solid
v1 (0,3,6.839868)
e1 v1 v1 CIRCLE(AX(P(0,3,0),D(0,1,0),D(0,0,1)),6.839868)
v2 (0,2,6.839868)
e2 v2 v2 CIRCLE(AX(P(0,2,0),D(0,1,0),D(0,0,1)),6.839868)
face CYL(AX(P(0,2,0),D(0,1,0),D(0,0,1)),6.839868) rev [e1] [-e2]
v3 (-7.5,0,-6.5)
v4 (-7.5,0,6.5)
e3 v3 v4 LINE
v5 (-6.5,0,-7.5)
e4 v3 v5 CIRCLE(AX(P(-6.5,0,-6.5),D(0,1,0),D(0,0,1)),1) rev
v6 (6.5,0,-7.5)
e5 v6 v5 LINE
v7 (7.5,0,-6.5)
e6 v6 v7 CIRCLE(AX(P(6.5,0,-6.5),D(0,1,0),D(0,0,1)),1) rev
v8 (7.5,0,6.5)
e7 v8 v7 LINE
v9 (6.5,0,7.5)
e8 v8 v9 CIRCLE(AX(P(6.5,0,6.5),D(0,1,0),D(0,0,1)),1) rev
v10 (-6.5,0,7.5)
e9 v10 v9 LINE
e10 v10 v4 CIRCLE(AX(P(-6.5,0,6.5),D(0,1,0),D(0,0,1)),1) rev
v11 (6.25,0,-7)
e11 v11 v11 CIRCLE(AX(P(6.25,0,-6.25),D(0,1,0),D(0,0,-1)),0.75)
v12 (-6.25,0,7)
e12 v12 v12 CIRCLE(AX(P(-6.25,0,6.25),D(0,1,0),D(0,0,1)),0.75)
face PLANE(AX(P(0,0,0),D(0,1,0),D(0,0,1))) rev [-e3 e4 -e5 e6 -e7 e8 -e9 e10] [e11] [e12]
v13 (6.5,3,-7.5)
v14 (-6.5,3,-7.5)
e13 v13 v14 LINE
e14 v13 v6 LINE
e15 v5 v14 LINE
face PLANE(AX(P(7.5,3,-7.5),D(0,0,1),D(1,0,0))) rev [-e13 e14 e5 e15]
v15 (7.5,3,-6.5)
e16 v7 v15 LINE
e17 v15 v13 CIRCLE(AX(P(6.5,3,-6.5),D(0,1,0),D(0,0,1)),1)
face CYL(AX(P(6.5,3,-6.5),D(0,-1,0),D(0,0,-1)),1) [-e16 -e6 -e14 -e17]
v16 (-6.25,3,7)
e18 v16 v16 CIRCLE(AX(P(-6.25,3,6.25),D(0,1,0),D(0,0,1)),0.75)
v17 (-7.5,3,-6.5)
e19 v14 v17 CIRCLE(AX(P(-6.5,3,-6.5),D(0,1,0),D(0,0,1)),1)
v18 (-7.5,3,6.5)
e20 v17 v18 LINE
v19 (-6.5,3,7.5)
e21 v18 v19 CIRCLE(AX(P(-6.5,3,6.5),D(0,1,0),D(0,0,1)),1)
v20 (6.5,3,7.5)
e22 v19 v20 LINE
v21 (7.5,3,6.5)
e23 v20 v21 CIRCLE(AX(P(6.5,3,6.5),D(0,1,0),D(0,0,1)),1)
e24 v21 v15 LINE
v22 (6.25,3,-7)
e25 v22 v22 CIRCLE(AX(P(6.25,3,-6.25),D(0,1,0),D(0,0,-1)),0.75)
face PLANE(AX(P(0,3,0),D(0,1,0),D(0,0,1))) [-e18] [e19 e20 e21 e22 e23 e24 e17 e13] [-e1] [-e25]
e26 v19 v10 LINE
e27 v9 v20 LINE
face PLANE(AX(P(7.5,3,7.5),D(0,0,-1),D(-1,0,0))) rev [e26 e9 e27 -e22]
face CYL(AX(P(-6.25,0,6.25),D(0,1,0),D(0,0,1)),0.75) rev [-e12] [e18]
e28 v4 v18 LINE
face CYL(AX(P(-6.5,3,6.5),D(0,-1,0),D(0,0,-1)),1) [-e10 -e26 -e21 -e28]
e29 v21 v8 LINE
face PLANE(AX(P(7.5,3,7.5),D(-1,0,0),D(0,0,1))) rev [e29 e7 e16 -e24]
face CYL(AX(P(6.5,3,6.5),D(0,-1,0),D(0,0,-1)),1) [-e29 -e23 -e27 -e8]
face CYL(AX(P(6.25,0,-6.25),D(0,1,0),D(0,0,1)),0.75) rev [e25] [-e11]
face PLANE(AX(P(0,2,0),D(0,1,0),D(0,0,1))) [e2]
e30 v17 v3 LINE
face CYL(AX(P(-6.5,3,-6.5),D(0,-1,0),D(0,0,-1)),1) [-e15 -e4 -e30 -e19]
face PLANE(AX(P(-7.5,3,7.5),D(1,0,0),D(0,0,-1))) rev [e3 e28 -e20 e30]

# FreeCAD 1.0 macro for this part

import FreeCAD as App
import Part
import Sketcher
from FreeCAD import Vector


def edges_at(feature, points):
    """Names of the edges that pass closest to the given points."""
    edges = feature.Shape.Edges
    near = lambda p: min(range(len(edges)), key=lambda i: edges[i].distToShape(Part.Vertex(*p))[0])
    return sorted({f"Edge{near(p) + 1}" for p in points})


def add_polygon(sketch, points):
    """Adds a closed chain of lines whose ends are joined by coincident constraints."""
    first, n = sketch.GeometryCount, len(points)
    for a, b in zip(points, points[1:] + points[:1]):
        sketch.addGeometry(Part.LineSegment(App.Vector(*a, 0), App.Vector(*b, 0)), False)
    for i in range(n):
        sketch.addConstraint(Sketcher.Constraint("Coincident", first + i, 2, first + (i + 1) % n, 1))

doc = App.newDocument("Part")
body = doc.addObject("PartDesign::Body", "Body")

sketch1 = doc.addObject("Sketcher::SketchObject", "Sketch")
body.addObject(sketch1)
sketch1.AttachmentSupport = (doc.XZ_Plane, [""])
sketch1.MapMode = "FlatFace"
add_polygon(sketch1, [(-7.5, -7.5), (-7.5, 7.5), (7.5, 7.5), (7.5, -7.5)])
sketch1.addConstraint([
    Sketcher.Constraint("Vertical", 0),
    Sketcher.Constraint("Horizontal", 1),
    Sketcher.Constraint("Vertical", 2),
    Sketcher.Constraint("Horizontal", 3),
    Sketcher.Constraint("Symmetric", 0, 2, 2, 2, -1, 1),
    Sketcher.Constraint("Equal", 3, 0),
    Sketcher.Constraint("DistanceX", 1, 1, 1, 2, 15.0),
])
pad1 = doc.addObject("PartDesign::Pad", "Pad")
body.addObject(pad1)
pad1.Profile = sketch1
pad1.Length = 3
pad1.Reversed = True
doc.recompute()

fillet = doc.addObject("PartDesign::Fillet", "Fillet")
body.addObject(fillet)
fillet.Base = (pad1, edges_at(pad1, [
    (-7.5, 1.5, -7.5),
    (7.5, 1.5, -7.5),
    (7.5, 1.5, 7.5),
    (-7.5, 1.5, 7.5),
]))
fillet.Radius = 1

sketch2 = doc.addObject("Sketcher::SketchObject", "Sketch001")
body.addObject(sketch2)
sketch2.AttachmentSupport = (doc.XZ_Plane, [""])
sketch2.MapMode = "FlatFace"
sketch2.AttachmentOffset = App.Placement(Vector(0, 0, -3), App.Rotation())
sketch2.addGeometry([
    Part.Circle(Vector(-6.25, 6.25, 0), Vector(0, 0, 1), 0.75),
    Part.Circle(Vector(6.25, -6.25, 0), Vector(0, 0, 1), 0.75),
], False)
sketch2.addConstraint([
    Sketcher.Constraint("Equal", 0, 1),
    Sketcher.Constraint("Symmetric", 0, 3, 1, 3, -1, 1),
    Sketcher.Constraint("Diameter", 0, 1.5),
    Sketcher.Constraint("DistanceX", 0, 3, 1, 3, 12.5),
    Sketcher.Constraint("DistanceY", 1, 3, 0, 3, 12.5),
])
pocket1 = doc.addObject("PartDesign::Pocket", "Pocket")
body.addObject(pocket1)
pocket1.Profile = sketch2
pocket1.Type = "ThroughAll"
pocket1.Reversed = True

sketch3 = doc.addObject("Sketcher::SketchObject", "Sketch002")
body.addObject(sketch3)
sketch3.AttachmentSupport = (doc.XZ_Plane, [""])
sketch3.MapMode = "FlatFace"
sketch3.AttachmentOffset = App.Placement(Vector(0, 0, -3), App.Rotation())
sketch3.addGeometry(Part.Circle(Vector(0, 0, 0), Vector(0, 0, 1), 6.839868), False)
sketch3.addConstraint([
    Sketcher.Constraint("Coincident", 0, 3, -1, 1),
    Sketcher.Constraint("Diameter", 0, 13.679736),
])
pocket2 = doc.addObject("PartDesign::Pocket", "Pocket001")
body.addObject(pocket2)
pocket2.Profile = sketch3
pocket2.Length = 1
pocket2.Reversed = True

doc.recompute()
